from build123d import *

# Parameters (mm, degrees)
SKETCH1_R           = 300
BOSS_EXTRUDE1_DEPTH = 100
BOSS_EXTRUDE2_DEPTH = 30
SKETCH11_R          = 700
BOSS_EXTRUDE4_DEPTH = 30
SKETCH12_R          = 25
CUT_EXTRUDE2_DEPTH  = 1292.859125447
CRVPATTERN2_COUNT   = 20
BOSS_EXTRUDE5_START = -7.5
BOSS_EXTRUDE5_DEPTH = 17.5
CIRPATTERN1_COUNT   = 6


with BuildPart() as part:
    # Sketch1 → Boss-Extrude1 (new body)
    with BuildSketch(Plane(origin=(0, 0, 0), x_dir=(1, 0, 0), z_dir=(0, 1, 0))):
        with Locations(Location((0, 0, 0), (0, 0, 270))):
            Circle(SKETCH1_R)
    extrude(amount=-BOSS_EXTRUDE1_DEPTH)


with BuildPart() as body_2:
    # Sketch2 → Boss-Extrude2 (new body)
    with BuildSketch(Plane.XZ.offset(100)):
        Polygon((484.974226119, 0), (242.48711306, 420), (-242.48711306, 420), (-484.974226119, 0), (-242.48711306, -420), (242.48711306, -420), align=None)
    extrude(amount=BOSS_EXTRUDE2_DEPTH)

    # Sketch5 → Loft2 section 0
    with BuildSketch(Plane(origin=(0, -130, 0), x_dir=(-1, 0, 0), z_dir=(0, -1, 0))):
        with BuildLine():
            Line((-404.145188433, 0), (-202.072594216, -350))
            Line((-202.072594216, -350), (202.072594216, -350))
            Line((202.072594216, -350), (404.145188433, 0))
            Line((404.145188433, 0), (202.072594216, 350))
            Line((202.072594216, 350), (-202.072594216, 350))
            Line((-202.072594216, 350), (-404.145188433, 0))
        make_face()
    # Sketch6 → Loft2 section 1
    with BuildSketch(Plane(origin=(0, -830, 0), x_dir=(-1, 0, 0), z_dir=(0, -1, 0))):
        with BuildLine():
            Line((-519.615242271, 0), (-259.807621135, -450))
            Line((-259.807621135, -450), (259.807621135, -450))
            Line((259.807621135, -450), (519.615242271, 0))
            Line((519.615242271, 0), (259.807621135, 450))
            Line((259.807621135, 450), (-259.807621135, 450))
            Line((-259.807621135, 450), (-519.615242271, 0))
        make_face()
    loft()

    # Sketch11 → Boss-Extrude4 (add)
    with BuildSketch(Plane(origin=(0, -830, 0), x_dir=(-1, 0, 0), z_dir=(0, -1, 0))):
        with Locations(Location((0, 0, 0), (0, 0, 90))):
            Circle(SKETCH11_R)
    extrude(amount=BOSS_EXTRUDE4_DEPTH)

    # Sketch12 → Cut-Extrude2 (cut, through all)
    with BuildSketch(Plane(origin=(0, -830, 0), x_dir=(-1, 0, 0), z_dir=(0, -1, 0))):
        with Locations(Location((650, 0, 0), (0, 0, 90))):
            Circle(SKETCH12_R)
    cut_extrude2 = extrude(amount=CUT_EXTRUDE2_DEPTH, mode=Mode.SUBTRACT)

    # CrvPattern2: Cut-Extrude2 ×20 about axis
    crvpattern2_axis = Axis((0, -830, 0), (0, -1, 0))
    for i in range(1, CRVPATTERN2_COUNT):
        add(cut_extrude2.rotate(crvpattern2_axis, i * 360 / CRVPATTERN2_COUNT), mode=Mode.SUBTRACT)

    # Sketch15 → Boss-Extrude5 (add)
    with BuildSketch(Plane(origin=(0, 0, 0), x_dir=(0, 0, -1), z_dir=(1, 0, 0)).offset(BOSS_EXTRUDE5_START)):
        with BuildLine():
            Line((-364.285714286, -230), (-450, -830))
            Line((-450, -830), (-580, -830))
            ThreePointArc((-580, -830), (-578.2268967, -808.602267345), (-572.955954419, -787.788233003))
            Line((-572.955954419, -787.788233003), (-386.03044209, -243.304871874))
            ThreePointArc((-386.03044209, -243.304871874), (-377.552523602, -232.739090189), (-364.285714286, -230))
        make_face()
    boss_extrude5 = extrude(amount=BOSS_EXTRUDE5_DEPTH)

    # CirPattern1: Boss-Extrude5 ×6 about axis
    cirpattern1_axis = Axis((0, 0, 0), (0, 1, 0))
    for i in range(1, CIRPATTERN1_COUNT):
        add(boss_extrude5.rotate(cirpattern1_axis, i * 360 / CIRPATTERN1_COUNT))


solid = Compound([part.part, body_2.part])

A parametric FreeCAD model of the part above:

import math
import FreeCAD as App
import Part
import Sketcher

V = App.Vector
Q = App.Units.Quantity


def add_polygon(sketch, points):
    """Adds a closed chain of lines whose ends are joined by coincident constraints."""
    first, n = sketch.GeometryCount, len(points)
    for a, b in zip(points, points[1:] + points[:1]):
        sketch.addGeometry(Part.LineSegment(App.Vector(*a, 0), App.Vector(*b, 0)), False)
    for i in range(n):
        sketch.addConstraint(Sketcher.Constraint("Coincident", first + i, 2, first + (i + 1) % n, 1))

doc = App.newDocument("Part")
body = doc.addObject("PartDesign::Body", "Body")

sketch1 = body.newObject("Sketcher::SketchObject", "Sketch")
sketch1.AttachmentSupport = (doc.getObject("XZ_Plane"), [""])
sketch1.MapMode = "FlatFace"
sketch1.addGeometry(Part.Circle(V(0, 0, 0), V(0, 0, 1), 300), False)
sketch1.addConstraint([
    Sketcher.Constraint("Coincident", 0, 3, -1, 1),
    Sketcher.Constraint("Diameter", 0, 600.0),
])
pad1 = body.newObject("PartDesign::Pad", "Pad")
pad1.Profile = sketch1
pad1.Length = 100
body2 = doc.addObject("PartDesign::Body", "Body001")

sketch2 = body2.newObject("Sketcher::SketchObject", "Sketch001")
sketch2.AttachmentSupport = (doc.getObject("XZ_Plane001"), [""])
sketch2.MapMode = "FlatFace"
sketch2.AttachmentOffset = App.Placement(V(0, 0, 100), App.Rotation())
add_polygon(sketch2, [(485, 0), (242, 420), (-242, 420), (-485, 0), (-242, -420), (242, -420)])
sketch2.addConstraint([
    Sketcher.Constraint("Horizontal", 1),
    Sketcher.Constraint("Horizontal", 4),
    Sketcher.Constraint("Symmetric", 0, 2, 3, 2, -1, 1),
    Sketcher.Constraint("Symmetric", 2, 2, 5, 2, -1, 1),
    Sketcher.Constraint("PointOnObject", 2, 2, -1),
    Sketcher.Constraint("Parallel", 2, 5),
    Sketcher.Constraint("Vertical", 1, 2, 3, 2),
    Sketcher.Constraint("Angle", 0, Q("120 deg")),
    Sketcher.Constraint("DistanceY", -1, 1, 0, 2, 420.0),
    Sketcher.Constraint("DistanceX", 1, 2, 1, 1, 484.974226),
])
pad2 = body2.newObject("PartDesign::Pad", "Pad001")
pad2.Profile = sketch2
pad2.Length = 30

sketch3 = body2.newObject("Sketcher::SketchObject", "Sketch002")
sketch3.AttachmentSupport = (doc.getObject("XZ_Plane001"), [""])
sketch3.MapMode = "FlatFace"
sketch3.AttachmentOffset = App.Placement(V(0, 0, 130), App.Rotation())
add_polygon(sketch3, [(404, 0), (202, 350), (-202, 350), (-404, 0), (-202, -350), (202, -350)])
sketch3.addConstraint([
    Sketcher.Constraint("Horizontal", 1),
    Sketcher.Constraint("Horizontal", 4),
    Sketcher.Constraint("Symmetric", 0, 2, 3, 2, -1, 1),
    Sketcher.Constraint("Symmetric", 2, 2, 5, 2, -1, 1),
    Sketcher.Constraint("PointOnObject", 2, 2, -1),
    Sketcher.Constraint("Parallel", 2, 5),
    Sketcher.Constraint("Vertical", 1, 2, 3, 2),
    Sketcher.Constraint("Angle", 0, Q("120 deg")),
    Sketcher.Constraint("DistanceY", -1, 1, 0, 2, 350.0),
    Sketcher.Constraint("DistanceX", 1, 2, 1, 1, 404.145188),
])

sketch4 = body2.newObject("Sketcher::SketchObject", "Sketch003")
sketch4.AttachmentSupport = (doc.getObject("XZ_Plane001"), [""])
sketch4.MapMode = "FlatFace"
sketch4.AttachmentOffset = App.Placement(V(0, 0, 830), App.Rotation())
add_polygon(sketch4, [(520, 0), (260, 450), (-260, 450), (-520, 0), (-260, -450), (260, -450)])
sketch4.addConstraint([
    Sketcher.Constraint("Horizontal", 1),
    Sketcher.Constraint("Horizontal", 4),
    Sketcher.Constraint("Symmetric", 0, 2, 3, 2, -1, 1),
    Sketcher.Constraint("Symmetric", 2, 2, 5, 2, -1, 1),
    Sketcher.Constraint("PointOnObject", 2, 2, -1),
    Sketcher.Constraint("Parallel", 2, 5),
    Sketcher.Constraint("Vertical", 1, 2, 3, 2),
    Sketcher.Constraint("Angle", 0, Q("120 deg")),
    Sketcher.Constraint("DistanceY", -1, 1, 0, 2, 450.0),
    Sketcher.Constraint("DistanceX", 1, 2, 1, 1, 519.615242),
])

additiveloft = body2.newObject("PartDesign::AdditiveLoft", "AdditiveLoft")
additiveloft.Profile = sketch3
additiveloft.Sections = [sketch4]

sketch5 = body2.newObject("Sketcher::SketchObject", "Sketch004")
sketch5.AttachmentSupport = (doc.getObject("XZ_Plane001"), [""])
sketch5.MapMode = "FlatFace"
sketch5.AttachmentOffset = App.Placement(V(0, 0, 830), App.Rotation())
sketch5.addGeometry(Part.Circle(V(0, 0, 0), V(0, 0, 1), 700), False)
sketch5.addConstraint([
    Sketcher.Constraint("Coincident", 0, 3, -1, 1),
    Sketcher.Constraint("Diameter", 0, 1400.0),
])
pad3 = body2.newObject("PartDesign::Pad", "Pad002")
pad3.Profile = sketch5
pad3.Length = 30

sketch6 = body2.newObject("Sketcher::SketchObject", "Sketch005")
sketch6.AttachmentSupport = (doc.getObject("XZ_Plane001"), [""])
sketch6.MapMode = "FlatFace"
sketch6.AttachmentOffset = App.Placement(V(0, 0, 830), App.Rotation())
sketch6.addGeometry(Part.Circle(V(-650, 0, 0), V(0, 0, 1), 25), False)
sketch6.addConstraint([
    Sketcher.Constraint("PointOnObject", 0, 3, -1),
    Sketcher.Constraint("Diameter", 0, 50.0),
    Sketcher.Constraint("DistanceX", 0, 3, -1, 1, 650.0),
])
pocket1 = body2.newObject("PartDesign::Pocket", "Pocket")
pocket1.Profile = sketch6
pocket1.Type = "ThroughAll"
pocket1.Reversed = True
doc.recompute()

polarpattern = body2.newObject("PartDesign::PolarPattern", "PolarPattern")
polarpattern.Originals = [pocket1]
polarpattern.Axis = (doc.getObject("Y_Axis001"), [""])
polarpattern.Angle = 360
polarpattern.Occurrences = 20
body2.Tip = polarpattern

sketch7 = body2.newObject("Sketcher::SketchObject", "Sketch006")
sketch7.AttachmentSupport = (doc.getObject("YZ_Plane001"), [""])
sketch7.MapMode = "FlatFace"
sketch7.AttachmentOffset = App.Placement(V(0, 0, -7.5), App.Rotation())
sketch7.addGeometry([
    Part.LineSegment(V(-830, 450, 0), V(-230, 364, 0)),
    Part.ArcOfCircle(Part.Circle(V(-250, 367, 0), V(0, 0, 1), 20), math.radians(-8), math.radians(71)),
    Part.LineSegment(V(-243, 386, 0), V(-788, 573, 0)),
    Part.ArcOfCircle(Part.Circle(V(-830, 450, 0), V(0, 0, 1), 130), math.radians(71.05), math.radians(90)),
    Part.LineSegment(V(-830, 580, 0), V(-830, 450, 0)),
], False)
sketch7.addConstraint([
    Sketcher.Constraint("Coincident", 0, 2, 1, 1),
    Sketcher.Constraint("Tangent", 1, 2, 2, 1),
    Sketcher.Constraint("Tangent", 2, 2, 3, 1),
    Sketcher.Constraint("Coincident", 3, 2, 4, 1),
    Sketcher.Constraint("Coincident", 4, 2, 0, 1),
    Sketcher.Constraint("Vertical", 4),
    Sketcher.Constraint("Coincident", 4, 2, 3, 3),
    Sketcher.Constraint("Radius", 1, 20.0),
    Sketcher.Constraint("Radius", 3, 130.0),
    Sketcher.Constraint("DistanceX", 3, 3, -1, 1, 830.0),
    Sketcher.Constraint("DistanceY", -1, 1, 3, 3, 450.0),
    Sketcher.Constraint("DistanceX", 0, 2, -1, 1, 230.0),
    Sketcher.Constraint("DistanceX", 1, 3, -1, 1, 249.79899),
    Sketcher.Constraint("DistanceY", -1, 1, 1, 3, 367.114141),
])
pad4 = body2.newObject("PartDesign::Pad", "Pad003")
pad4.Profile = sketch7
pad4.Length = 17.5
doc.recompute()

polarpattern2 = body2.newObject("PartDesign::PolarPattern", "PolarPattern001")
polarpattern2.Originals = [pad4]
polarpattern2.Axis = (doc.getObject("Y_Axis001"), [""])
polarpattern2.Angle = 360
polarpattern2.Occurrences = 6
body2.Tip = polarpattern2

doc.recompute()
